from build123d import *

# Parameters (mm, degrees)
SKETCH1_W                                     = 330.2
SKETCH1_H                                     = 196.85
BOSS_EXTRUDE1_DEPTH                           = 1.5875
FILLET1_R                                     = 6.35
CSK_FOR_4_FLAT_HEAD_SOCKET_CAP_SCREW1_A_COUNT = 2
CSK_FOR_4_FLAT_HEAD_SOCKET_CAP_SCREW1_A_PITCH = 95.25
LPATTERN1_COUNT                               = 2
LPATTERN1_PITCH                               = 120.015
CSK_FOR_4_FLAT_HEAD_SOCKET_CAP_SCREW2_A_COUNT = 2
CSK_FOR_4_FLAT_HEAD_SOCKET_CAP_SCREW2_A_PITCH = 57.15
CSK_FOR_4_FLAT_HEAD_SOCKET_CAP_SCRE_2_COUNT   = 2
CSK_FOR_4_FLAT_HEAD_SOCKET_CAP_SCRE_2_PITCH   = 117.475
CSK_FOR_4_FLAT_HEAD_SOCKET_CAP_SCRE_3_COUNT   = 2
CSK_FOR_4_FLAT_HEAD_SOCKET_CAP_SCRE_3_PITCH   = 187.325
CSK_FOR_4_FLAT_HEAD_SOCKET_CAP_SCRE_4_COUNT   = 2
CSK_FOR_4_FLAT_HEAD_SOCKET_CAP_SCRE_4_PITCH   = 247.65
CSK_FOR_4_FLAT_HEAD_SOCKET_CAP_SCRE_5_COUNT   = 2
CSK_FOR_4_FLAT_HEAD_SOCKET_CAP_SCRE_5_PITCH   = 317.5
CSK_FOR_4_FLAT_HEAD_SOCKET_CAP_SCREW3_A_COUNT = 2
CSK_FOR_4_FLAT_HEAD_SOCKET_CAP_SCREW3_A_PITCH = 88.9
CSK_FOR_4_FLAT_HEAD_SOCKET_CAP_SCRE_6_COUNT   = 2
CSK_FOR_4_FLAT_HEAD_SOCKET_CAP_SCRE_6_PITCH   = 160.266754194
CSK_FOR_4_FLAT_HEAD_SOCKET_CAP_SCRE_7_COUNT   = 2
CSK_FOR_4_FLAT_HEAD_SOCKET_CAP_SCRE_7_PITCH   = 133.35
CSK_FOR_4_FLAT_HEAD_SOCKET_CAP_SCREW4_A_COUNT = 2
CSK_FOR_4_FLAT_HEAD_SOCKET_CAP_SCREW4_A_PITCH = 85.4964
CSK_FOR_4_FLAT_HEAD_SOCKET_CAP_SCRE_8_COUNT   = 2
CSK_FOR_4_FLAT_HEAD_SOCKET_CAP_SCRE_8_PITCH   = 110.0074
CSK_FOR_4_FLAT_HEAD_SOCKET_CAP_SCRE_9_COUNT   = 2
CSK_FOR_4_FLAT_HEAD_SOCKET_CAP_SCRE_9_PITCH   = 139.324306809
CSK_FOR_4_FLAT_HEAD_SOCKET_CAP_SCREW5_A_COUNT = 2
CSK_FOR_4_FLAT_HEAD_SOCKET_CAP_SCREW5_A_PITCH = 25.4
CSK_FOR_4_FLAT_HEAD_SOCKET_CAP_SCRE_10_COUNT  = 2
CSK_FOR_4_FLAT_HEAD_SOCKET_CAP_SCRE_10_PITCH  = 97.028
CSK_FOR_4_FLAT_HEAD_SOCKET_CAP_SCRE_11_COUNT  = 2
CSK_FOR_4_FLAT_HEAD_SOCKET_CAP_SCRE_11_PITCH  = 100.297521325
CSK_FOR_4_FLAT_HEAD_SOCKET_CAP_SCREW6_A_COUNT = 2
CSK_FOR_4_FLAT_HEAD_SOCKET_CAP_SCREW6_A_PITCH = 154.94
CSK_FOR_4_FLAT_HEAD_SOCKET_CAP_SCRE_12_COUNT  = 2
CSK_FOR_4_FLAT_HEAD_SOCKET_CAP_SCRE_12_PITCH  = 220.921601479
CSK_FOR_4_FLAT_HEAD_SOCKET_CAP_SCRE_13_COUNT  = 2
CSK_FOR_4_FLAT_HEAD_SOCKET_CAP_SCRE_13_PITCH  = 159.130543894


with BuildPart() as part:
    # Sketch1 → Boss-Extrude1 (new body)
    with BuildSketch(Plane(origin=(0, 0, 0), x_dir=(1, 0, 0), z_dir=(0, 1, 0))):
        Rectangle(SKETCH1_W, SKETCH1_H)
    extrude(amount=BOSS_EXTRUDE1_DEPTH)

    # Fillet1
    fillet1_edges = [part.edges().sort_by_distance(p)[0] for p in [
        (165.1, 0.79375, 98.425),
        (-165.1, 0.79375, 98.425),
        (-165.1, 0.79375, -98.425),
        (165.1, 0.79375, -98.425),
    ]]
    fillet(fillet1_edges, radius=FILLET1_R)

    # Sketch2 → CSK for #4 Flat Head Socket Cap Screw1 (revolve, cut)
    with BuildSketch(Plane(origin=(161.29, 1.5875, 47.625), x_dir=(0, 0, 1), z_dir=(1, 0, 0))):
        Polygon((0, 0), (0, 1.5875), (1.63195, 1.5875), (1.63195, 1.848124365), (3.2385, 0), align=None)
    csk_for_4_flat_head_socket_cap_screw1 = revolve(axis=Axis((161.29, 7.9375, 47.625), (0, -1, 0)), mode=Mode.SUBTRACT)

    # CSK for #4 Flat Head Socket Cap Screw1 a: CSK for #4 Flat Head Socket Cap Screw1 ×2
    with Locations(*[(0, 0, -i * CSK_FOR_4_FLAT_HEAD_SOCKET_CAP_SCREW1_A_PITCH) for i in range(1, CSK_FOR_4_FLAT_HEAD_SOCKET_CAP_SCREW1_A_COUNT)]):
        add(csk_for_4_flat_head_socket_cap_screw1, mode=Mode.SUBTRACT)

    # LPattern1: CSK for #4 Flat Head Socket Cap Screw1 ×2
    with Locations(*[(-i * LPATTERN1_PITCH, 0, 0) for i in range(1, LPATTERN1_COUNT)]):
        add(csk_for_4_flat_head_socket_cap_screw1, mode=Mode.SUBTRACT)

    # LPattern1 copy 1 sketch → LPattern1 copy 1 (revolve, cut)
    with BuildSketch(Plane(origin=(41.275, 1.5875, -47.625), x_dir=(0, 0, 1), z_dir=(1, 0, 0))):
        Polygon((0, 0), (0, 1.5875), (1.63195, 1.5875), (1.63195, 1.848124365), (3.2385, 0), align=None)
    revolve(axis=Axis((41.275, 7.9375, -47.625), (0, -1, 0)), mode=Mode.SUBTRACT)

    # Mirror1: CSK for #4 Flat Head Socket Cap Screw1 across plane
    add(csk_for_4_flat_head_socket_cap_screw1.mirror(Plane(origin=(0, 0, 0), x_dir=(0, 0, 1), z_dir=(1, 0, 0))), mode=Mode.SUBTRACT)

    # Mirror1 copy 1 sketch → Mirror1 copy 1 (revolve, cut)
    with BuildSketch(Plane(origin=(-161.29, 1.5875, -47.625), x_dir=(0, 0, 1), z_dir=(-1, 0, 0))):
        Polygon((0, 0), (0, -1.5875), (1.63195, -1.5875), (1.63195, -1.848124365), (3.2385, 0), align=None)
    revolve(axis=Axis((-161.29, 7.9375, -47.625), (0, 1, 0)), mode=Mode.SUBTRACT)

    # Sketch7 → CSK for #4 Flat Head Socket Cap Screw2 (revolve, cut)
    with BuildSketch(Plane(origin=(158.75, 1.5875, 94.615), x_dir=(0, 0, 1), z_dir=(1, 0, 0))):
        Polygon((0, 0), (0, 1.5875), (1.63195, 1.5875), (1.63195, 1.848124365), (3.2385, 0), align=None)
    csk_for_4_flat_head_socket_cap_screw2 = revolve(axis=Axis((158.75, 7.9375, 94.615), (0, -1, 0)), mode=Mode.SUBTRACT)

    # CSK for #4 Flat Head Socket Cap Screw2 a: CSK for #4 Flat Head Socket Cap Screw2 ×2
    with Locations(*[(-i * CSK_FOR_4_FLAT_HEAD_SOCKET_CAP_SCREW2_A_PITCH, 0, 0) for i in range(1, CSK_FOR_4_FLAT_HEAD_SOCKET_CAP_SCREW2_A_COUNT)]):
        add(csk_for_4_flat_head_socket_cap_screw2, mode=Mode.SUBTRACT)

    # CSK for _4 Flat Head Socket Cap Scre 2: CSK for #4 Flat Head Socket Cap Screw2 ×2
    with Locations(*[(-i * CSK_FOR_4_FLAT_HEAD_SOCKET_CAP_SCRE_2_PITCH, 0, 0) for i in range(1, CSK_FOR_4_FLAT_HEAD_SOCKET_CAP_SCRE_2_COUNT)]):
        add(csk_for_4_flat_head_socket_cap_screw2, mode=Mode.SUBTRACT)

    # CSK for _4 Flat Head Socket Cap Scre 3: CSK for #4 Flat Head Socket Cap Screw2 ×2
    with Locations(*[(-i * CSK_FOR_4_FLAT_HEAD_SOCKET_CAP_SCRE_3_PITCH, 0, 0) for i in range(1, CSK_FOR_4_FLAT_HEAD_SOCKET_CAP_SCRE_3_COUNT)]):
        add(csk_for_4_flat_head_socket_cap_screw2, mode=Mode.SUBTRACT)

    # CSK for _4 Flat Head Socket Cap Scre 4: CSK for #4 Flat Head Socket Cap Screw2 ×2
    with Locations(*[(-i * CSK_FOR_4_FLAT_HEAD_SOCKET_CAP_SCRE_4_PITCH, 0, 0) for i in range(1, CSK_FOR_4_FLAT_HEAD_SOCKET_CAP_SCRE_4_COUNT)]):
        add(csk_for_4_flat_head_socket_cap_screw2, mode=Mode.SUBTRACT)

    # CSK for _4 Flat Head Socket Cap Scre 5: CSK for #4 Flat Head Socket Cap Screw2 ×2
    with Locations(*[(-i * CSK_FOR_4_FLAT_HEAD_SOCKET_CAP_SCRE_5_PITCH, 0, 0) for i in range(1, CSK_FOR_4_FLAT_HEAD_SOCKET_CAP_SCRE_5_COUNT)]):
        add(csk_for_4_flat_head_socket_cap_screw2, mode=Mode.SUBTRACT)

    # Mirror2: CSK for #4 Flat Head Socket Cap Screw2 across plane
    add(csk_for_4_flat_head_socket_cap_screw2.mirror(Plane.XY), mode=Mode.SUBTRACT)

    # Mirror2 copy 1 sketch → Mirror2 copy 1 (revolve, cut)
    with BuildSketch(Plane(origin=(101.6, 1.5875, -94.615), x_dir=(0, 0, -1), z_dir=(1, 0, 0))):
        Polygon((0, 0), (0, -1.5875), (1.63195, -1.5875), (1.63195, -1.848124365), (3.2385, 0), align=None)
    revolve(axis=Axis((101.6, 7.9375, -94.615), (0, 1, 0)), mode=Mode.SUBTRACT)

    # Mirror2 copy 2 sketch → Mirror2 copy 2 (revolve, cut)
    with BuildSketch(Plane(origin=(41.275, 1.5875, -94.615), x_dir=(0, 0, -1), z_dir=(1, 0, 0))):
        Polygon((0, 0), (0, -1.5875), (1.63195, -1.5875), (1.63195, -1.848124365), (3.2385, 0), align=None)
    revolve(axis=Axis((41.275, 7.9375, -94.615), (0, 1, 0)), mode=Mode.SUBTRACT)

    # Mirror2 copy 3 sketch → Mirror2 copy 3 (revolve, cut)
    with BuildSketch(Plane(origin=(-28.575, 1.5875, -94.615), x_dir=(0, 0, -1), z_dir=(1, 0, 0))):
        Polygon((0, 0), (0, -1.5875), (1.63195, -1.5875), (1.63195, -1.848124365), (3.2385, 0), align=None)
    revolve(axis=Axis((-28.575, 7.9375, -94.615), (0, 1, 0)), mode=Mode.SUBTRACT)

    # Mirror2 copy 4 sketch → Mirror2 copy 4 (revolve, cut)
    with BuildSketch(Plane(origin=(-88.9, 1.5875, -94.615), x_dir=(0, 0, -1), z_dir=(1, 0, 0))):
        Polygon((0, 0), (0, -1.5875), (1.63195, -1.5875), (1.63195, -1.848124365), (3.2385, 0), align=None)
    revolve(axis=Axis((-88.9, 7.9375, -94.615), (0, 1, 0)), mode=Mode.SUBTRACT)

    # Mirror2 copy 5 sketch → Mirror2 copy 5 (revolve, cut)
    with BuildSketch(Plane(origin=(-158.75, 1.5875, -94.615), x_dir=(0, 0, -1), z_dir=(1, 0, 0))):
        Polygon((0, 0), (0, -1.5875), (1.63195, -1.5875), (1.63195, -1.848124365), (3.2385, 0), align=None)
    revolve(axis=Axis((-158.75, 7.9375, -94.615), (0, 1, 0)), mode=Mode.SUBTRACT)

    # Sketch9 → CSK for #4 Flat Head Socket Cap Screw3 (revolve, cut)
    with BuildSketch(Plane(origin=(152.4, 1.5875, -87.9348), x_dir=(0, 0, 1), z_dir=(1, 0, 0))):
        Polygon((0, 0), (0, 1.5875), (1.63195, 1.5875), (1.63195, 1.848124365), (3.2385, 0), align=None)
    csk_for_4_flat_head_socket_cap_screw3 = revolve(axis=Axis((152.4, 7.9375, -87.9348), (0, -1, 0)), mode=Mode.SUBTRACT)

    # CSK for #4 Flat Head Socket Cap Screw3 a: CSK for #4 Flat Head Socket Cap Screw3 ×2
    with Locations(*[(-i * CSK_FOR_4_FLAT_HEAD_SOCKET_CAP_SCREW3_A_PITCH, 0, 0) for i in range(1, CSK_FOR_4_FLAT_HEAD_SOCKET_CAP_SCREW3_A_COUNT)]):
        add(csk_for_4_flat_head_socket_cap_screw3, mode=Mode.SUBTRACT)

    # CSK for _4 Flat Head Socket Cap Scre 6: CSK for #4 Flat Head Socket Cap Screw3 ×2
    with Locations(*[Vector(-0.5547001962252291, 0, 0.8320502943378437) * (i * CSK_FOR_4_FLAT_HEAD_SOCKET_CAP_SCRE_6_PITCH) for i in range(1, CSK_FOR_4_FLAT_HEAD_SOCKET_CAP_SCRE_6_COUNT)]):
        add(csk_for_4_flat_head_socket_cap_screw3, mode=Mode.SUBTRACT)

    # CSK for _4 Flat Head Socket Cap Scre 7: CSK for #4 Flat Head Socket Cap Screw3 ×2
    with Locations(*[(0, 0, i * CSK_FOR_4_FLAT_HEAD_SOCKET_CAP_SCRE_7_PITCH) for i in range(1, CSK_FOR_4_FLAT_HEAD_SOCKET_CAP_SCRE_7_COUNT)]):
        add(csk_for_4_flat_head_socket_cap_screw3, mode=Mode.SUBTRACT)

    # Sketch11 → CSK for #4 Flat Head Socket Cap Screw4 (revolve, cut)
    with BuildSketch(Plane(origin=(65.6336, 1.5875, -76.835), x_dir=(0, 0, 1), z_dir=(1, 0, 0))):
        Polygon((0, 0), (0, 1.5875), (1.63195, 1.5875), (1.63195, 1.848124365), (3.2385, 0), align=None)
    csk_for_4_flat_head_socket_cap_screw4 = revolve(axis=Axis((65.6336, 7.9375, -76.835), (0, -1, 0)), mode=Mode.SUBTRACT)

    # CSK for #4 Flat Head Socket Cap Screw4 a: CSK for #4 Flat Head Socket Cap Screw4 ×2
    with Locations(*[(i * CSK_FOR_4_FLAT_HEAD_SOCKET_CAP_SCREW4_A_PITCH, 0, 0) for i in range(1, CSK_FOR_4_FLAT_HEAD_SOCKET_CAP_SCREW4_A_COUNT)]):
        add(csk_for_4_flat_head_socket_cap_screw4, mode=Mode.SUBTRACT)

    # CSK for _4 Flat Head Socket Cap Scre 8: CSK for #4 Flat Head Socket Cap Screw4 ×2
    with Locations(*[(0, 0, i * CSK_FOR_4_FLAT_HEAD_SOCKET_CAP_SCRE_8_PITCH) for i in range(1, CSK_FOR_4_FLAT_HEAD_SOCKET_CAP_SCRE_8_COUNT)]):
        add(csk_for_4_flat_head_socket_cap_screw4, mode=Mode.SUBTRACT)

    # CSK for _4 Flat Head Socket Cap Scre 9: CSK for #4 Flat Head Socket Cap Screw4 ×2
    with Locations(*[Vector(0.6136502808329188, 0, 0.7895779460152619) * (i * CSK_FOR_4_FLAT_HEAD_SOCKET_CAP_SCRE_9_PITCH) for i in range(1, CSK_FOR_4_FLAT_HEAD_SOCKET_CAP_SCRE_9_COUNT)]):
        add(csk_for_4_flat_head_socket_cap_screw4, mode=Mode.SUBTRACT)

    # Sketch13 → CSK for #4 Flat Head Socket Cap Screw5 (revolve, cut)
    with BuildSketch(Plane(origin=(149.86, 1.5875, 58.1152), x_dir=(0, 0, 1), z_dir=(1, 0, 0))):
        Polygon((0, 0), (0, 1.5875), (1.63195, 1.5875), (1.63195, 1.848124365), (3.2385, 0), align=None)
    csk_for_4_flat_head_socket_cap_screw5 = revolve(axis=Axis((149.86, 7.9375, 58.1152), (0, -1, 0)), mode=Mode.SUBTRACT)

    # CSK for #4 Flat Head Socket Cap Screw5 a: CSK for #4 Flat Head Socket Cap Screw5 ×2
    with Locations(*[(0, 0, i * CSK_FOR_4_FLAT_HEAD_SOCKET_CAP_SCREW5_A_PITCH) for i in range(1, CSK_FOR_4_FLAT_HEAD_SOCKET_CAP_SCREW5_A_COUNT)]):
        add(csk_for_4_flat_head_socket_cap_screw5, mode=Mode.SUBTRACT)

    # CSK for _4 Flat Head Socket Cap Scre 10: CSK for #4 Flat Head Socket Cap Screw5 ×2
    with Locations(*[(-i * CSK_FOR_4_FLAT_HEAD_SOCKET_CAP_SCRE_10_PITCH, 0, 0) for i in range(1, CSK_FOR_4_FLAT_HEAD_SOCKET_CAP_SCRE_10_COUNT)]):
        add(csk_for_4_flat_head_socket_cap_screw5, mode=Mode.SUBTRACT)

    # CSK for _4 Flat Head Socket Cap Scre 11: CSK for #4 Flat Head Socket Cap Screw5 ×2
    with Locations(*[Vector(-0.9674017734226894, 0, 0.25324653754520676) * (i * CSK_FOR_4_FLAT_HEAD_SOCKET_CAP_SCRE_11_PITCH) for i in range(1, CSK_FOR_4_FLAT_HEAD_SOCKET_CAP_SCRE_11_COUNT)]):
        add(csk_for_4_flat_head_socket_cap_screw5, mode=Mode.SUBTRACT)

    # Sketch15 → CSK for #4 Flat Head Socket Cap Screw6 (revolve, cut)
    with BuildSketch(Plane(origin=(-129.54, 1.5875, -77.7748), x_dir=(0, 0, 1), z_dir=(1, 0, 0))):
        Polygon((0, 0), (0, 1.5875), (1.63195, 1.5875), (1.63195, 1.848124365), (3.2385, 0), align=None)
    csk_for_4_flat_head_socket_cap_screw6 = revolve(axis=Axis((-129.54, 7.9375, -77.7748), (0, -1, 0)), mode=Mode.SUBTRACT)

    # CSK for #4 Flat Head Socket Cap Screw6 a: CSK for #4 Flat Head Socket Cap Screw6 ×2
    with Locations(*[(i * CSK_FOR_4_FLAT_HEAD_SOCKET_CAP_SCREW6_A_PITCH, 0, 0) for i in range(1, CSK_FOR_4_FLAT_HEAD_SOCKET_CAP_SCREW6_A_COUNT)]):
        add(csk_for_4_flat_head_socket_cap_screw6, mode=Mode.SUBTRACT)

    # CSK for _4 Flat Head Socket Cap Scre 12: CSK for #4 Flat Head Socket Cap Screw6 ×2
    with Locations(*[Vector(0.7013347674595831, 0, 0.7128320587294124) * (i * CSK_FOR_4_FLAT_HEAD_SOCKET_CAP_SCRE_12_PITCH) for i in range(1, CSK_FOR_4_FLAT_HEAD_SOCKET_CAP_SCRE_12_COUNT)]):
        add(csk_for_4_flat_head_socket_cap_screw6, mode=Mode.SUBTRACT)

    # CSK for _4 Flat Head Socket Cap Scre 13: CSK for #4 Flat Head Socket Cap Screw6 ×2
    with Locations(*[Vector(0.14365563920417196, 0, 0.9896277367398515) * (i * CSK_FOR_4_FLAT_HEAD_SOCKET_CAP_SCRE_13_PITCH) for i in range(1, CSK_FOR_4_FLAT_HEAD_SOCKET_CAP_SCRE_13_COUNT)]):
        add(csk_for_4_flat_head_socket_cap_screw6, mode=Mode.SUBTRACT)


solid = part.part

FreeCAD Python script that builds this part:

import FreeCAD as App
import Part
import Sketcher

V = App.Vector
Q = App.Units.Quantity


def edges_at(feature, points):
    """Names of the edges that pass closest to the given points."""
    edges = feature.Shape.Edges
    near = lambda p: min(range(len(edges)), key=lambda i: edges[i].distToShape(Part.Vertex(*p))[0])
    return sorted({f"Edge{near(p) + 1}" for p in points})


def add_polygon(sketch, points):
    """Adds a closed chain of lines whose ends are joined by coincident constraints."""
    first, n = sketch.GeometryCount, len(points)
    for a, b in zip(points, points[1:] + points[:1]):
        sketch.addGeometry(Part.LineSegment(App.Vector(*a, 0), App.Vector(*b, 0)), False)
    for i in range(n):
        sketch.addConstraint(Sketcher.Constraint("Coincident", first + i, 2, first + (i + 1) % n, 1))

doc = App.newDocument("Part")
body = doc.addObject("PartDesign::Body", "Body")

sketch1 = body.newObject("Sketcher::SketchObject", "Sketch")
sketch1.AttachmentSupport = (doc.getObject("XZ_Plane"), [""])
sketch1.MapMode = "FlatFace"
add_polygon(sketch1, [(-165, -98), (-165, 98), (165, 98), (165, -98)])
sketch1.addConstraint([
    Sketcher.Constraint("Vertical", 0),
    Sketcher.Constraint("Horizontal", 1),
    Sketcher.Constraint("Vertical", 2),
    Sketcher.Constraint("Horizontal", 3),
    Sketcher.Constraint("Symmetric", 0, 2, 2, 2, -1, 1),
    Sketcher.Constraint("DistanceX", 1, 1, 1, 2, Q("13 in")),
    Sketcher.Constraint("DistanceY", 0, 1, 0, 2, Q("7.75 in")),
])
pad1 = body.newObject("PartDesign::Pad", "Pad")
pad1.Profile = sketch1
pad1.Length = Q("0.0625 in")
pad1.Reversed = True
doc.recompute()

fillet = body.newObject("PartDesign::Fillet", "Fillet")
fillet.Base = (pad1, edges_at(pad1, [
    (165.1, 0.794, 98.425),
    (-165.1, 0.794, 98.425),
    (-165.1, 0.794, -98.425),
    (165.1, 0.794, -98.425),
]))
fillet.Radius = Q("0.25 in")

sketch2 = body.newObject("Sketcher::SketchObject", "Sketch001")
sketch2.AttachmentSupport = (doc.getObject("YZ_Plane"), [""])
sketch2.MapMode = "FlatFace"
sketch2.AttachmentOffset = App.Placement(V(0, 0, 6.35 * 25.4), App.Rotation())
add_polygon(sketch2, [(0, 47.62), (1.59, 47.62), (1.59, 50.86), (-0.26, 49.26), (0, 49.26)])
sketch2.addGeometry(Part.LineSegment(V(1.59, 47.62, 0), V(-0.26, 47.62, 0)), True)
sketch2.addConstraint([
    Sketcher.Constraint("Horizontal", 0),
    Sketcher.Constraint("Vertical", 1),
    Sketcher.Constraint("Horizontal", 3),
    Sketcher.Constraint("Vertical", 4),
    Sketcher.Constraint("Horizontal", 5),
    Sketcher.Constraint("Coincident", 5, 1, 0, 2),
    Sketcher.Constraint("PointOnObject", 3, 2, -2),
    Sketcher.Constraint("Vertical", 2, 2, 5, 2),
    Sketcher.Constraint("Angle", 2, Q("-139 deg")),
    Sketcher.Constraint("DistanceX", 0, 1, 0, 2, Q("0.0625 in")),
    Sketcher.Constraint("DistanceY", 1, 1, 1, 2, Q("0.1275 in")),
    Sketcher.Constraint("DistanceY", -1, 1, 0, 2, Q("1.875 in")),
    Sketcher.Constraint("DistanceY", 4, 2, 4, 1, 1.63195),
])
groove = body.newObject("PartDesign::Groove", "Groove")
groove.Profile = sketch2
groove.ReferenceAxis = (sketch2, ["Axis0"])
groove.Angle = 360
doc.recompute()

linearpattern = body.newObject("PartDesign::LinearPattern", "LinearPattern")
linearpattern.Originals = [groove]
linearpattern.Direction = (doc.getObject("Z_Axis"), [""])
linearpattern.Mode = "offset"
linearpattern.Offset = Q("3.75 in")
linearpattern.Occurrences = 2
linearpattern.Reversed = True
body.Tip = linearpattern
doc.recompute()

linearpattern2 = body.newObject("PartDesign::LinearPattern", "LinearPattern001")
linearpattern2.Originals = [groove]
linearpattern2.Direction = (doc.getObject("X_Axis"), [""])
linearpattern2.Mode = "offset"
linearpattern2.Offset = Q("4.725 in")
linearpattern2.Occurrences = 2
linearpattern2.Reversed = True
body.Tip = linearpattern2

sketch3 = body.newObject("Sketcher::SketchObject", "Sketch002")
sketch3.AttachmentSupport = (doc.getObject("YZ_Plane"), [""])
sketch3.MapMode = "FlatFace"
sketch3.AttachmentOffset = App.Placement(V(0, 0, 1.625 * 25.4), App.Rotation())
add_polygon(sketch3, [(0, -47.62), (1.59, -47.62), (1.59, -44.39), (-0.26, -45.99), (0, -45.99)])
sketch3.addGeometry(Part.LineSegment(V(1.59, -47.62, 0), V(-0.26, -47.62, 0)), True)
sketch3.addConstraint([
    Sketcher.Constraint("Horizontal", 0),
    Sketcher.Constraint("Vertical", 1),
    Sketcher.Constraint("Horizontal", 3),
    Sketcher.Constraint("Vertical", 4),
    Sketcher.Constraint("Horizontal", 5),
    Sketcher.Constraint("Coincident", 5, 1, 0, 2),
    Sketcher.Constraint("PointOnObject", 3, 2, -2),
    Sketcher.Constraint("Vertical", 2, 2, 5, 2),
    Sketcher.Constraint("Angle", 2, Q("-139 deg")),
    Sketcher.Constraint("DistanceX", 0, 1, 0, 2, Q("0.0625 in")),
    Sketcher.Constraint("DistanceY", 1, 1, 1, 2, Q("0.1275 in")),
    Sketcher.Constraint("DistanceY", 0, 2, -1, 1, Q("1.875 in")),
    Sketcher.Constraint("DistanceY", 4, 2, 4, 1, 1.63195),
])
groove2 = body.newObject("PartDesign::Groove", "Groove001")
groove2.Profile = sketch3
groove2.ReferenceAxis = (sketch3, ["Axis0"])
groove2.Angle = 360
doc.recompute()

mirrored = body.newObject("PartDesign::Mirrored", "Mirrored")
mirrored.Originals = [groove]
mirrored.MirrorPlane = (doc.getObject("YZ_Plane"), [""])
body.Tip = mirrored

sketch4 = body.newObject("Sketcher::SketchObject", "Sketch003")
sketch4.AttachmentSupport = (doc.getObject("YZ_Plane"), [""])
sketch4.MapMode = "FlatFace"
sketch4.AttachmentOffset = App.Placement(V(0, 0, -6.35 * 25.4), App.Rotation())
add_polygon(sketch4, [(1.59, -47.62), (0, -47.62), (0, -45.99), (-0.26, -45.99), (1.59, -44.39)])
sketch4.addGeometry(Part.LineSegment(V(-0.26, -47.62, 0), V(1.59, -47.62, 0)), True)
sketch4.addConstraint([
    Sketcher.Constraint("Horizontal", 0),
    Sketcher.Constraint("Vertical", 1),
    Sketcher.Constraint("Horizontal", 2),
    Sketcher.Constraint("Vertical", 4),
    Sketcher.Constraint("Horizontal", 5),
    Sketcher.Constraint("Coincident", 5, 2, 4, 2),
    Sketcher.Constraint("PointOnObject", 0, 2, -2),
    Sketcher.Constraint("Vertical", 2, 2, 5, 1),
    Sketcher.Constraint("Angle", 3, Q("41 deg")),
    Sketcher.Constraint("DistanceX", 0, 2, 0, 1, Q("0.0625 in")),
    Sketcher.Constraint("DistanceY", 4, 2, 4, 1, Q("0.1275 in")),
    Sketcher.Constraint("DistanceY", 0, 2, -1, 1, Q("1.875 in")),
    Sketcher.Constraint("DistanceY", 1, 1, 1, 2, 1.63195),
])
groove3 = body.newObject("PartDesign::Groove", "Groove002")
groove3.Profile = sketch4
groove3.ReferenceAxis = (sketch4, ["Axis0"])
groove3.Angle = 360

sketch5 = body.newObject("Sketcher::SketchObject", "Sketch004")
sketch5.AttachmentSupport = (doc.getObject("YZ_Plane"), [""])
sketch5.MapMode = "FlatFace"
sketch5.AttachmentOffset = App.Placement(V(0, 0, 6.25 * 25.4), App.Rotation())
add_polygon(sketch5, [(0, 94.61), (1.59, 94.61), (1.59, 97.85), (-0.26, 96.25), (0, 96.25)])
sketch5.addGeometry(Part.LineSegment(V(1.59, 94.61, 0), V(-0.26, 94.61, 0)), True)
sketch5.addConstraint([
    Sketcher.Constraint("Horizontal", 0),
    Sketcher.Constraint("Vertical", 1),
    Sketcher.Constraint("Horizontal", 3),
    Sketcher.Constraint("Vertical", 4),
    Sketcher.Constraint("Horizontal", 5),
    Sketcher.Constraint("Coincident", 5, 1, 0, 2),
    Sketcher.Constraint("PointOnObject", 3, 2, -2),
    Sketcher.Constraint("Vertical", 2, 2, 5, 2),
    Sketcher.Constraint("Angle", 2, Q("-139 deg")),
    Sketcher.Constraint("DistanceX", 0, 1, 0, 2, Q("0.0625 in")),
    Sketcher.Constraint("DistanceY", 1, 1, 1, 2, Q("0.1275 in")),
    Sketcher.Constraint("DistanceY", -1, 1, 0, 2, Q("3.725 in")),
    Sketcher.Constraint("DistanceY", 4, 2, 4, 1, 1.63195),
])
groove4 = body.newObject("PartDesign::Groove", "Groove003")
groove4.Profile = sketch5
groove4.ReferenceAxis = (sketch5, ["Axis0"])
groove4.Angle = 360
doc.recompute()

linearpattern3 = body.newObject("PartDesign::LinearPattern", "LinearPattern002")
linearpattern3.Originals = [groove4]
linearpattern3.Direction = (doc.getObject("X_Axis"), [""])
linearpattern3.Mode = "offset"
linearpattern3.Offset = Q("2.25 in")
linearpattern3.Occurrences = 2
linearpattern3.Reversed = True
body.Tip = linearpattern3
doc.recompute()

linearpattern4 = body.newObject("PartDesign::LinearPattern", "LinearPattern003")
linearpattern4.Originals = [groove4]
linearpattern4.Direction = (doc.getObject("X_Axis"), [""])
linearpattern4.Mode = "offset"
linearpattern4.Offset = Q("4.625 in")
linearpattern4.Occurrences = 2
linearpattern4.Reversed = True
body.Tip = linearpattern4
doc.recompute()

linearpattern5 = body.newObject("PartDesign::LinearPattern", "LinearPattern004")
linearpattern5.Originals = [groove4]
linearpattern5.Direction = (doc.getObject("X_Axis"), [""])
linearpattern5.Mode = "offset"
linearpattern5.Offset = Q("7.375 in")
linearpattern5.Occurrences = 2
linearpattern5.Reversed = True
body.Tip = linearpattern5
doc.recompute()

linearpattern6 = body.newObject("PartDesign::LinearPattern", "LinearPattern005")
linearpattern6.Originals = [groove4]
linearpattern6.Direction = (doc.getObject("X_Axis"), [""])
linearpattern6.Mode = "offset"
linearpattern6.Offset = Q("9.75 in")
linearpattern6.Occurrences = 2
linearpattern6.Reversed = True
body.Tip = linearpattern6
doc.recompute()

linearpattern7 = body.newObject("PartDesign::LinearPattern", "LinearPattern006")
linearpattern7.Originals = [groove4]
linearpattern7.Direction = (doc.getObject("X_Axis"), [""])
linearpattern7.Mode = "offset"
linearpattern7.Offset = Q("12.5 in")
linearpattern7.Occurrences = 2
linearpattern7.Reversed = True
body.Tip = linearpattern7
doc.recompute()

mirrored2 = body.newObject("PartDesign::Mirrored", "Mirrored001")
mirrored2.Originals = [groove4]
mirrored2.MirrorPlane = (doc.getObject("XY_Plane"), [""])
body.Tip = mirrored2

sketch6 = body.newObject("Sketcher::SketchObject", "Sketch005")
sketch6.AttachmentSupport = (doc.getObject("YZ_Plane"), [""])
sketch6.MapMode = "FlatFace"
sketch6.AttachmentOffset = App.Placement(V(0, 0, 4 * 25.4), App.Rotation())
add_polygon(sketch6, [(1.59, -94.61), (0, -94.61), (0, -96.25), (-0.26, -96.25), (1.59, -97.85)])
sketch6.addGeometry(Part.LineSegment(V(-0.26, -94.61, 0), V(1.59, -94.61, 0)), True)
sketch6.addConstraint([
    Sketcher.Constraint("Horizontal", 0),
    Sketcher.Constraint("Vertical", 1),
    Sketcher.Constraint("Horizontal", 2),
    Sketcher.Constraint("Vertical", 4),
    Sketcher.Constraint("Horizontal", 5),
    Sketcher.Constraint("Coincident", 5, 2, 4, 2),
    Sketcher.Constraint("PointOnObject", 0, 2, -2),
    Sketcher.Constraint("Vertical", 2, 2, 5, 1),
    Sketcher.Constraint("Angle", 3, Q("-41 deg")),
    Sketcher.Constraint("DistanceX", 0, 2, 0, 1, Q("0.0625 in")),
    Sketcher.Constraint("DistanceY", 4, 1, 4, 2, Q("0.1275 in")),
    Sketcher.Constraint("DistanceY", 0, 2, -1, 1, Q("3.725 in")),
    Sketcher.Constraint("DistanceY", 1, 2, 1, 1, 1.63195),
])
groove5 = body.newObject("PartDesign::Groove", "Groove004")
groove5.Profile = sketch6
groove5.ReferenceAxis = (sketch6, ["Axis0"])
groove5.Angle = 360

sketch7 = body.newObject("Sketcher::SketchObject", "Sketch006")
sketch7.AttachmentSupport = (doc.getObject("YZ_Plane"), [""])
sketch7.MapMode = "FlatFace"
sketch7.AttachmentOffset = App.Placement(V(0, 0, 1.625 * 25.4), App.Rotation())
add_polygon(sketch7, [(1.59, -94.61), (0, -94.61), (0, -96.25), (-0.26, -96.25), (1.59, -97.85)])
sketch7.addGeometry(Part.LineSegment(V(-0.26, -94.61, 0), V(1.59, -94.61, 0)), True)
sketch7.addConstraint([
    Sketcher.Constraint("Horizontal", 0),
    Sketcher.Constraint("Vertical", 1),
    Sketcher.Constraint("Horizontal", 2),
    Sketcher.Constraint("Vertical", 4),
    Sketcher.Constraint("Horizontal", 5),
    Sketcher.Constraint("Coincident", 5, 2, 4, 2),
    Sketcher.Constraint("PointOnObject", 0, 2, -2),
    Sketcher.Constraint("Vertical", 2, 2, 5, 1),
    Sketcher.Constraint("Angle", 3, Q("-41 deg")),
    Sketcher.Constraint("DistanceX", 0, 2, 0, 1, Q("0.0625 in")),
    Sketcher.Constraint("DistanceY", 4, 1, 4, 2, Q("0.1275 in")),
    Sketcher.Constraint("DistanceY", 0, 2, -1, 1, Q("3.725 in")),
    Sketcher.Constraint("DistanceY", 1, 2, 1, 1, 1.63195),
])
groove6 = body.newObject("PartDesign::Groove", "Groove005")
groove6.Profile = sketch7
groove6.ReferenceAxis = (sketch7, ["Axis0"])
groove6.Angle = 360

sketch8 = body.newObject("Sketcher::SketchObject", "Sketch007")
sketch8.AttachmentSupport = (doc.getObject("YZ_Plane"), [""])
sketch8.MapMode = "FlatFace"
sketch8.AttachmentOffset = App.Placement(V(0, 0, -1.125 * 25.4), App.Rotation())
add_polygon(sketch8, [(1.59, -94.61), (0, -94.61), (0, -96.25), (-0.26, -96.25), (1.59, -97.85)])
sketch8.addGeometry(Part.LineSegment(V(-0.26, -94.61, 0), V(1.59, -94.61, 0)), True)
sketch8.addConstraint([
    Sketcher.Constraint("Horizontal", 0),
    Sketcher.Constraint("Vertical", 1),
    Sketcher.Constraint("Horizontal", 2),
    Sketcher.Constraint("Vertical", 4),
    Sketcher.Constraint("Horizontal", 5),
    Sketcher.Constraint("Coincident", 5, 2, 4, 2),
    Sketcher.Constraint("PointOnObject", 0, 2, -2),
    Sketcher.Constraint("Vertical", 2, 2, 5, 1),
    Sketcher.Constraint("Angle", 3, Q("-41 deg")),
    Sketcher.Constraint("DistanceX", 0, 2, 0, 1, Q("0.0625 in")),
    Sketcher.Constraint("DistanceY", 4, 1, 4, 2, Q("0.1275 in")),
    Sketcher.Constraint("DistanceY", 0, 2, -1, 1, Q("3.725 in")),
    Sketcher.Constraint("DistanceY", 1, 2, 1, 1, 1.63195),
])
groove7 = body.newObject("PartDesign::Groove", "Groove006")
groove7.Profile = sketch8
groove7.ReferenceAxis = (sketch8, ["Axis0"])
groove7.Angle = 360

sketch9 = body.newObject("Sketcher::SketchObject", "Sketch008")
sketch9.AttachmentSupport = (doc.getObject("YZ_Plane"), [""])
sketch9.MapMode = "FlatFace"
sketch9.AttachmentOffset = App.Placement(V(0, 0, -3.5 * 25.4), App.Rotation())
add_polygon(sketch9, [(1.59, -94.61), (0, -94.61), (0, -96.25), (-0.26, -96.25), (1.59, -97.85)])
sketch9.addGeometry(Part.LineSegment(V(-0.26, -94.61, 0), V(1.59, -94.61, 0)), True)
sketch9.addConstraint([
    Sketcher.Constraint("Horizontal", 0),
    Sketcher.Constraint("Vertical", 1),
    Sketcher.Constraint("Horizontal", 2),
    Sketcher.Constraint("Vertical", 4),
    Sketcher.Constraint("Horizontal", 5),
    Sketcher.Constraint("Coincident", 5, 2, 4, 2),
    Sketcher.Constraint("PointOnObject", 0, 2, -2),
    Sketcher.Constraint("Vertical", 2, 2, 5, 1),
    Sketcher.Constraint("Angle", 3, Q("-41 deg")),
    Sketcher.Constraint("DistanceX", 0, 2, 0, 1, Q("0.0625 in")),
    Sketcher.Constraint("DistanceY", 4, 1, 4, 2, Q("0.1275 in")),
    Sketcher.Constraint("DistanceY", 0, 2, -1, 1, Q("3.725 in")),
    Sketcher.Constraint("DistanceY", 1, 2, 1, 1, 1.63195),
])
groove8 = body.newObject("PartDesign::Groove", "Groove007")
groove8.Profile = sketch9
groove8.ReferenceAxis = (sketch9, ["Axis0"])
groove8.Angle = 360

sketch10 = body.newObject("Sketcher::SketchObject", "Sketch009")
sketch10.AttachmentSupport = (doc.getObject("YZ_Plane"), [""])
sketch10.MapMode = "FlatFace"
sketch10.AttachmentOffset = App.Placement(V(0, 0, -6.25 * 25.4), App.Rotation())
add_polygon(sketch10, [(1.59, -94.61), (0, -94.61), (0, -96.25), (-0.26, -96.25), (1.59, -97.85)])
sketch10.addGeometry(Part.LineSegment(V(-0.26, -94.61, 0), V(1.59, -94.61, 0)), True)
sketch10.addConstraint([
    Sketcher.Constraint("Horizontal", 0),
    Sketcher.Constraint("Vertical", 1),
    Sketcher.Constraint("Horizontal", 2),
    Sketcher.Constraint("Vertical", 4),
    Sketcher.Constraint("Horizontal", 5),
    Sketcher.Constraint("Coincident", 5, 2, 4, 2),
    Sketcher.Constraint("PointOnObject", 0, 2, -2),
    Sketcher.Constraint("Vertical", 2, 2, 5, 1),
    Sketcher.Constraint("Angle", 3, Q("-41 deg")),
    Sketcher.Constraint("DistanceX", 0, 2, 0, 1, Q("0.0625 in")),
    Sketcher.Constraint("DistanceY", 4, 1, 4, 2, Q("0.1275 in")),
    Sketcher.Constraint("DistanceY", 0, 2, -1, 1, Q("3.725 in")),
    Sketcher.Constraint("DistanceY", 1, 2, 1, 1, 1.63195),
])
groove9 = body.newObject("PartDesign::Groove", "Groove008")
groove9.Profile = sketch10
groove9.ReferenceAxis = (sketch10, ["Axis0"])
groove9.Angle = 360

sketch11 = body.newObject("Sketcher::SketchObject", "Sketch010")
sketch11.AttachmentSupport = (doc.getObject("YZ_Plane"), [""])
sketch11.MapMode = "FlatFace"
sketch11.AttachmentOffset = App.Placement(V(0, 0, 6 * 25.4), App.Rotation())
add_polygon(sketch11, [(0, -87.93), (1.59, -87.93), (1.59, -84.7), (-0.26, -86.3), (0, -86.3)])
sketch11.addGeometry(Part.LineSegment(V(1.59, -87.93, 0), V(-0.26, -87.93, 0)), True)
sketch11.addConstraint([
    Sketcher.Constraint("Horizontal", 0),
    Sketcher.Constraint("Vertical", 1),
    Sketcher.Constraint("Horizontal", 3),
    Sketcher.Constraint("Vertical", 4),
    Sketcher.Constraint("Horizontal", 5),
    Sketcher.Constraint("Coincident", 5, 1, 0, 2),
    Sketcher.Constraint("PointOnObject", 3, 2, -2),
    Sketcher.Constraint("Vertical", 2, 2, 5, 2),
    Sketcher.Constraint("Angle", 2, Q("-139 deg")),
    Sketcher.Constraint("DistanceX", 0, 1, 0, 2, Q("0.0625 in")),
    Sketcher.Constraint("DistanceY", 1, 1, 1, 2, Q("0.1275 in")),
    Sketcher.Constraint("DistanceY", 0, 2, -1, 1, Q("3.462 in")),
    Sketcher.Constraint("DistanceY", 4, 2, 4, 1, 1.63195),
])
groove10 = body.newObject("PartDesign::Groove", "Groove009")
groove10.Profile = sketch11
groove10.ReferenceAxis = (sketch11, ["Axis0"])
groove10.Angle = 360
doc.recompute()

linearpattern8 = body.newObject("PartDesign::LinearPattern", "LinearPattern007")
linearpattern8.Originals = [groove10]
linearpattern8.Direction = (doc.getObject("X_Axis"), [""])
linearpattern8.Mode = "offset"
linearpattern8.Offset = Q("3.5 in")
linearpattern8.Occurrences = 2
linearpattern8.Reversed = True
body.Tip = linearpattern8
doc.recompute()

datumline = body.newObject("PartDesign::Line", "DatumLine")
datumline.Placement = App.Placement(V(0, 0, 0), App.Rotation(V(0, 0, 1), V(-0.554700196, 0, 0.832050294)))
linearpattern9 = body.newObject("PartDesign::LinearPattern", "LinearPattern008")
linearpattern9.Originals = [groove10]
linearpattern9.Direction = (datumline, [""])
linearpattern9.Mode = "offset"
linearpattern9.Offset = 160.266754
linearpattern9.Occurrences = 2
body.Tip = linearpattern9
doc.recompute()

linearpattern10 = body.newObject("PartDesign::LinearPattern", "LinearPattern009")
linearpattern10.Originals = [groove10]
linearpattern10.Direction = (doc.getObject("Z_Axis"), [""])
linearpattern10.Mode = "offset"
linearpattern10.Offset = Q("5.25 in")
linearpattern10.Occurrences = 2
body.Tip = linearpattern10

sketch12 = body.newObject("Sketcher::SketchObject", "Sketch011")
sketch12.AttachmentSupport = (doc.getObject("YZ_Plane"), [""])
sketch12.MapMode = "FlatFace"
sketch12.AttachmentOffset = App.Placement(V(0, 0, 2.584 * 25.4), App.Rotation())
add_polygon(sketch12, [(0, -76.83), (1.59, -76.83), (1.59, -73.6), (-0.26, -75.2), (0, -75.2)])
sketch12.addGeometry(Part.LineSegment(V(1.59, -76.83, 0), V(-0.26, -76.83, 0)), True)
sketch12.addConstraint([
    Sketcher.Constraint("Horizontal", 0),
    Sketcher.Constraint("Vertical", 1),
    Sketcher.Constraint("Horizontal", 3),
    Sketcher.Constraint("Vertical", 4),
    Sketcher.Constraint("Horizontal", 5),
    Sketcher.Constraint("Coincident", 5, 1, 0, 2),
    Sketcher.Constraint("PointOnObject", 3, 2, -2),
    Sketcher.Constraint("Vertical", 2, 2, 5, 2),
    Sketcher.Constraint("Angle", 2, Q("-139 deg")),
    Sketcher.Constraint("DistanceX", 0, 1, 0, 2, Q("0.0625 in")),
    Sketcher.Constraint("DistanceY", 1, 1, 1, 2, Q("0.1275 in")),
    Sketcher.Constraint("DistanceY", 0, 2, -1, 1, Q("3.025 in")),
    Sketcher.Constraint("DistanceY", 4, 2, 4, 1, 1.63195),
])
groove11 = body.newObject("PartDesign::Groove", "Groove010")
groove11.Profile = sketch12
groove11.ReferenceAxis = (sketch12, ["Axis0"])
groove11.Angle = 360
doc.recompute()

linearpattern11 = body.newObject("PartDesign::LinearPattern", "LinearPattern010")
linearpattern11.Originals = [groove11]
linearpattern11.Direction = (doc.getObject("X_Axis"), [""])
linearpattern11.Mode = "offset"
linearpattern11.Offset = Q("3.366 in")
linearpattern11.Occurrences = 2
body.Tip = linearpattern11
doc.recompute()

linearpattern12 = body.newObject("PartDesign::LinearPattern", "LinearPattern011")
linearpattern12.Originals = [groove11]
linearpattern12.Direction = (doc.getObject("Z_Axis"), [""])
linearpattern12.Mode = "offset"
linearpattern12.Offset = Q("4.331 in")
linearpattern12.Occurrences = 2
body.Tip = linearpattern12
doc.recompute()

datumline2 = body.newObject("PartDesign::Line", "DatumLine001")
datumline2.Placement = App.Placement(V(0, 0, 0), App.Rotation(V(0, 0, 1), V(0.613650281, 0, 0.789577946)))
linearpattern13 = body.newObject("PartDesign::LinearPattern", "LinearPattern012")
linearpattern13.Originals = [groove11]
linearpattern13.Direction = (datumline2, [""])
linearpattern13.Mode = "offset"
linearpattern13.Offset = 139.324307
linearpattern13.Occurrences = 2
body.Tip = linearpattern13

sketch13 = body.newObject("Sketcher::SketchObject", "Sketch012")
sketch13.AttachmentSupport = (doc.getObject("YZ_Plane"), [""])
sketch13.MapMode = "FlatFace"
sketch13.AttachmentOffset = App.Placement(V(0, 0, 5.9 * 25.4), App.Rotation())
add_polygon(sketch13, [(0, 58.12), (1.59, 58.12), (1.59, 61.35), (-0.26, 59.75), (0, 59.75)])
sketch13.addGeometry(Part.LineSegment(V(1.59, 58.12, 0), V(-0.26, 58.12, 0)), True)
sketch13.addConstraint([
    Sketcher.Constraint("Horizontal", 0),
    Sketcher.Constraint("Vertical", 1),
    Sketcher.Constraint("Horizontal", 3),
    Sketcher.Constraint("Vertical", 4),
    Sketcher.Constraint("Horizontal", 5),
    Sketcher.Constraint("Coincident", 5, 1, 0, 2),
    Sketcher.Constraint("PointOnObject", 3, 2, -2),
    Sketcher.Constraint("Vertical", 2, 2, 5, 2),
    Sketcher.Constraint("Angle", 2, Q("-139 deg")),
    Sketcher.Constraint("DistanceX", 0, 1, 0, 2, Q("0.0625 in")),
    Sketcher.Constraint("DistanceY", 1, 1, 1, 2, Q("0.1275 in")),
    Sketcher.Constraint("DistanceY", -1, 1, 0, 2, Q("2.288 in")),
    Sketcher.Constraint("DistanceY", 4, 2, 4, 1, 1.63195),
])
groove12 = body.newObject("PartDesign::Groove", "Groove011")
groove12.Profile = sketch13
groove12.ReferenceAxis = (sketch13, ["Axis0"])
groove12.Angle = 360
doc.recompute()

linearpattern14 = body.newObject("PartDesign::LinearPattern", "LinearPattern013")
linearpattern14.Originals = [groove12]
linearpattern14.Direction = (doc.getObject("Z_Axis"), [""])
linearpattern14.Mode = "offset"
linearpattern14.Offset = Q("1 in")
linearpattern14.Occurrences = 2
body.Tip = linearpattern14
doc.recompute()

linearpattern15 = body.newObject("PartDesign::LinearPattern", "LinearPattern014")
linearpattern15.Originals = [groove12]
linearpattern15.Direction = (doc.getObject("X_Axis"), [""])
linearpattern15.Mode = "offset"
linearpattern15.Offset = Q("3.82 in")
linearpattern15.Occurrences = 2
linearpattern15.Reversed = True
body.Tip = linearpattern15
doc.recompute()

datumline3 = body.newObject("PartDesign::Line", "DatumLine002")
datumline3.Placement = App.Placement(V(0, 0, 0), App.Rotation(V(0, 0, 1), V(-0.967401773, 0, 0.253246538)))
linearpattern16 = body.newObject("PartDesign::LinearPattern", "LinearPattern015")
linearpattern16.Originals = [groove12]
linearpattern16.Direction = (datumline3, [""])
linearpattern16.Mode = "offset"
linearpattern16.Offset = 100.297521
linearpattern16.Occurrences = 2
body.Tip = linearpattern16

sketch14 = body.newObject("Sketcher::SketchObject", "Sketch013")
sketch14.AttachmentSupport = (doc.getObject("YZ_Plane"), [""])
sketch14.MapMode = "FlatFace"
sketch14.AttachmentOffset = App.Placement(V(0, 0, -5.1 * 25.4), App.Rotation())
add_polygon(sketch14, [(0, -77.77), (1.59, -77.77), (1.59, -74.54), (-0.26, -76.14), (0, -76.14)])
sketch14.addGeometry(Part.LineSegment(V(1.59, -77.77, 0), V(-0.26, -77.77, 0)), True)
sketch14.addConstraint([
    Sketcher.Constraint("Horizontal", 0),
    Sketcher.Constraint("Vertical", 1),
    Sketcher.Constraint("Horizontal", 3),
    Sketcher.Constraint("Vertical", 4),
    Sketcher.Constraint("Horizontal", 5),
    Sketcher.Constraint("Coincident", 5, 1, 0, 2),
    Sketcher.Constraint("PointOnObject", 3, 2, -2),
    Sketcher.Constraint("Vertical", 2, 2, 5, 2),
    Sketcher.Constraint("Angle", 2, Q("-139 deg")),
    Sketcher.Constraint("DistanceX", 0, 1, 0, 2, Q("0.0625 in")),
    Sketcher.Constraint("DistanceY", 1, 1, 1, 2, Q("0.1275 in")),
    Sketcher.Constraint("DistanceY", 0, 2, -1, 1, Q("3.062 in")),
    Sketcher.Constraint("DistanceY", 4, 2, 4, 1, 1.63195),
])
groove13 = body.newObject("PartDesign::Groove", "Groove012")
groove13.Profile = sketch14
groove13.ReferenceAxis = (sketch14, ["Axis0"])
groove13.Angle = 360
doc.recompute()

linearpattern17 = body.newObject("PartDesign::LinearPattern", "LinearPattern016")
linearpattern17.Originals = [groove13]
linearpattern17.Direction = (doc.getObject("X_Axis"), [""])
linearpattern17.Mode = "offset"
linearpattern17.Offset = Q("6.1 in")
linearpattern17.Occurrences = 2
body.Tip = linearpattern17
doc.recompute()

datumline4 = body.newObject("PartDesign::Line", "DatumLine003")
datumline4.Placement = App.Placement(V(0, 0, 0), App.Rotation(V(0, 0, 1), V(0.701334767, 0, 0.712832059)))
linearpattern18 = body.newObject("PartDesign::LinearPattern", "LinearPattern017")
linearpattern18.Originals = [groove13]
linearpattern18.Direction = (datumline4, [""])
linearpattern18.Mode = "offset"
linearpattern18.Offset = 220.921601
linearpattern18.Occurrences = 2
body.Tip = linearpattern18
doc.recompute()

datumline5 = body.newObject("PartDesign::Line", "DatumLine004")
datumline5.Placement = App.Placement(V(0, 0, 0), App.Rotation(V(0, 0, 1), V(0.143655639, 0, 0.989627737)))
linearpattern19 = body.newObject("PartDesign::LinearPattern", "LinearPattern018")
linearpattern19.Originals = [groove13]
linearpattern19.Direction = (datumline5, [""])
linearpattern19.Mode = "offset"
linearpattern19.Offset = 159.130544
linearpattern19.Occurrences = 2
body.Tip = linearpattern19

doc.recompute()
